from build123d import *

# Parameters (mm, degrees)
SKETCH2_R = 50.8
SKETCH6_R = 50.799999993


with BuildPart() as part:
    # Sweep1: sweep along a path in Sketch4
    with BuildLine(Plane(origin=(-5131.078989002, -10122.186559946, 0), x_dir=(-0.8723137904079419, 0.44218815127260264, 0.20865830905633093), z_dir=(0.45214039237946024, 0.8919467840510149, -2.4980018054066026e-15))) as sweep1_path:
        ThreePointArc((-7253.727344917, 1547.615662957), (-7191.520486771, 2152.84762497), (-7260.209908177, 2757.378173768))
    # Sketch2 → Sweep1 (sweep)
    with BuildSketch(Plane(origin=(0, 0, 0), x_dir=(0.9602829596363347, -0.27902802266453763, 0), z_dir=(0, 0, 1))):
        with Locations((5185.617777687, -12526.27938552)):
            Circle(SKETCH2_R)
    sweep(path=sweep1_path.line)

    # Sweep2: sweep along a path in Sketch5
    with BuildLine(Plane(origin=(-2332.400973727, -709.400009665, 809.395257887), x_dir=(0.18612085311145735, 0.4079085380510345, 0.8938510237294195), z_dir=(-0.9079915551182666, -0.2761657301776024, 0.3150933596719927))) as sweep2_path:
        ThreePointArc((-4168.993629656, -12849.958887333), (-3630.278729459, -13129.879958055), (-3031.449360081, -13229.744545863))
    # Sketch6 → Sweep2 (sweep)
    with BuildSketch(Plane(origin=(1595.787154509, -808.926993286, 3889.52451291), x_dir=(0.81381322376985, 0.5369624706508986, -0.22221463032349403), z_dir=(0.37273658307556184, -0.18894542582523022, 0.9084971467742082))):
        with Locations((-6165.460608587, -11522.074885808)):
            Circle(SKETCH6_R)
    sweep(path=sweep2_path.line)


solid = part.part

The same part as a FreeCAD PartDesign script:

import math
import FreeCAD as App
import Part
import Sketcher
Q = App.Units.Quantity

doc = App.newDocument("Part")
body = doc.addObject("PartDesign::Body", "Body")

sketch1 = doc.addObject("Sketcher::SketchObject", "Sketch")
body.addObject(sketch1)
sketch1.AttachmentSupport = (doc.XY_Plane, [""])
sketch1.MapMode = "FlatFace"
sketch1.addGeometry(Part.Circle(App.Vector(1484, -13476, 0), App.Vector(0, 0, 1), 51), False)
sketch1.addConstraint([
    Sketcher.Constraint("Diameter", 0, Q("4 in")),
    Sketcher.Constraint("DistanceX", -1, 1, 0, 3, 1484.477416),
    Sketcher.Constraint("DistanceY", 0, 3, -1, 1, 13475.705323),
])

sketch2 = doc.addObject("Sketcher::SketchObject", "Sketch001")
body.addObject(sketch2)
sketch2.Placement = App.Placement(App.Vector(-5131.078989, -10122.18656, 0), App.Rotation(App.Vector(0.891946784, -0.452140392, 0), App.Vector(0, 0, 1), App.Vector(-0.452140392, -0.891946784, 0), "ZXY"))
sketch2.addGeometry(Part.ArcOfCircle(Part.Circle(App.Vector(10245, 0, 0), App.Vector(0, 0, 1), 2828), math.radians(155), math.radians(180)), False)
sketch2.addConstraint([
    Sketcher.Constraint("PointOnObject", 0, 3, -1),
    Sketcher.Constraint("PointOnObject", 0, 2, -1),
    Sketcher.Constraint("Radius", 0, 2827.965071),
    Sketcher.Constraint("DistanceX", 0, 1, 0, 3, 2569.198199),
    Sketcher.Constraint("DistanceX", -1, 1, 0, 3, 10244.950616),
])
doc.recompute()

additivepipe = doc.addObject("PartDesign::AdditivePipe", "AdditivePipe")
body.addObject(additivepipe)
additivepipe.Profile = sketch1
additivepipe.Spine = (sketch2, ["Edge1"])

sketch3 = doc.addObject("Sketcher::SketchObject", "Sketch002")
body.addObject(sketch3)
sketch3.Placement = App.Placement(App.Vector(1595.787155, -808.926993, 3889.524513), App.Rotation(App.Vector(0.813813224, 0.536962471, -0.22221463), App.Vector(-0.445842435, 0.822174514, 0.353911843), App.Vector(0.372736583, -0.188945426, 0.908497147), "ZXY"))
sketch3.addGeometry(Part.Circle(App.Vector(-6165, -11522, 0), App.Vector(0, 0, 1), 51), False)
sketch3.addConstraint([
    Sketcher.Constraint("Diameter", 0, Q("4 in")),
    Sketcher.Constraint("DistanceX", 0, 3, -1, 1, 6165.460612),
    Sketcher.Constraint("DistanceY", 0, 3, -1, 1, 11522.074898),
])

sketch4 = doc.addObject("Sketcher::SketchObject", "Sketch003")
body.addObject(sketch4)
sketch4.Placement = App.Placement(App.Vector(-2332.400974, -709.40001, 809.395258), App.Rotation(App.Vector(0.327843171, 0, 0.944732161), App.Vector(-0.260902647, 0.96111003, 0.090539049), App.Vector(-0.907991555, -0.27616573, 0.31509336), "ZXY"))
sketch4.addGeometry(Part.ArcOfCircle(Part.Circle(App.Vector(2061, -11501, 0), App.Vector(0, 0, 1), 1942), math.radians(-101), math.radians(-65)), False)
sketch4.addConstraint([
    Sketcher.Constraint("Radius", 0, 1941.613101),
    Sketcher.Constraint("DistanceY", 0, 3, -1, 1, 11500.885401),
    Sketcher.Constraint("DistanceY", 0, 1, -1, 1, 13404.609118),
    Sketcher.Constraint("DistanceY", 0, 2, -1, 1, 13265.703281),
    Sketcher.Constraint("DistanceX", -1, 1, 0, 3, 2060.514203),
])
doc.recompute()

additivepipe2 = doc.addObject("PartDesign::AdditivePipe", "AdditivePipe001")
body.addObject(additivepipe2)
additivepipe2.Profile = sketch3
additivepipe2.Spine = (sketch4, ["Edge1"])

doc.recompute()
